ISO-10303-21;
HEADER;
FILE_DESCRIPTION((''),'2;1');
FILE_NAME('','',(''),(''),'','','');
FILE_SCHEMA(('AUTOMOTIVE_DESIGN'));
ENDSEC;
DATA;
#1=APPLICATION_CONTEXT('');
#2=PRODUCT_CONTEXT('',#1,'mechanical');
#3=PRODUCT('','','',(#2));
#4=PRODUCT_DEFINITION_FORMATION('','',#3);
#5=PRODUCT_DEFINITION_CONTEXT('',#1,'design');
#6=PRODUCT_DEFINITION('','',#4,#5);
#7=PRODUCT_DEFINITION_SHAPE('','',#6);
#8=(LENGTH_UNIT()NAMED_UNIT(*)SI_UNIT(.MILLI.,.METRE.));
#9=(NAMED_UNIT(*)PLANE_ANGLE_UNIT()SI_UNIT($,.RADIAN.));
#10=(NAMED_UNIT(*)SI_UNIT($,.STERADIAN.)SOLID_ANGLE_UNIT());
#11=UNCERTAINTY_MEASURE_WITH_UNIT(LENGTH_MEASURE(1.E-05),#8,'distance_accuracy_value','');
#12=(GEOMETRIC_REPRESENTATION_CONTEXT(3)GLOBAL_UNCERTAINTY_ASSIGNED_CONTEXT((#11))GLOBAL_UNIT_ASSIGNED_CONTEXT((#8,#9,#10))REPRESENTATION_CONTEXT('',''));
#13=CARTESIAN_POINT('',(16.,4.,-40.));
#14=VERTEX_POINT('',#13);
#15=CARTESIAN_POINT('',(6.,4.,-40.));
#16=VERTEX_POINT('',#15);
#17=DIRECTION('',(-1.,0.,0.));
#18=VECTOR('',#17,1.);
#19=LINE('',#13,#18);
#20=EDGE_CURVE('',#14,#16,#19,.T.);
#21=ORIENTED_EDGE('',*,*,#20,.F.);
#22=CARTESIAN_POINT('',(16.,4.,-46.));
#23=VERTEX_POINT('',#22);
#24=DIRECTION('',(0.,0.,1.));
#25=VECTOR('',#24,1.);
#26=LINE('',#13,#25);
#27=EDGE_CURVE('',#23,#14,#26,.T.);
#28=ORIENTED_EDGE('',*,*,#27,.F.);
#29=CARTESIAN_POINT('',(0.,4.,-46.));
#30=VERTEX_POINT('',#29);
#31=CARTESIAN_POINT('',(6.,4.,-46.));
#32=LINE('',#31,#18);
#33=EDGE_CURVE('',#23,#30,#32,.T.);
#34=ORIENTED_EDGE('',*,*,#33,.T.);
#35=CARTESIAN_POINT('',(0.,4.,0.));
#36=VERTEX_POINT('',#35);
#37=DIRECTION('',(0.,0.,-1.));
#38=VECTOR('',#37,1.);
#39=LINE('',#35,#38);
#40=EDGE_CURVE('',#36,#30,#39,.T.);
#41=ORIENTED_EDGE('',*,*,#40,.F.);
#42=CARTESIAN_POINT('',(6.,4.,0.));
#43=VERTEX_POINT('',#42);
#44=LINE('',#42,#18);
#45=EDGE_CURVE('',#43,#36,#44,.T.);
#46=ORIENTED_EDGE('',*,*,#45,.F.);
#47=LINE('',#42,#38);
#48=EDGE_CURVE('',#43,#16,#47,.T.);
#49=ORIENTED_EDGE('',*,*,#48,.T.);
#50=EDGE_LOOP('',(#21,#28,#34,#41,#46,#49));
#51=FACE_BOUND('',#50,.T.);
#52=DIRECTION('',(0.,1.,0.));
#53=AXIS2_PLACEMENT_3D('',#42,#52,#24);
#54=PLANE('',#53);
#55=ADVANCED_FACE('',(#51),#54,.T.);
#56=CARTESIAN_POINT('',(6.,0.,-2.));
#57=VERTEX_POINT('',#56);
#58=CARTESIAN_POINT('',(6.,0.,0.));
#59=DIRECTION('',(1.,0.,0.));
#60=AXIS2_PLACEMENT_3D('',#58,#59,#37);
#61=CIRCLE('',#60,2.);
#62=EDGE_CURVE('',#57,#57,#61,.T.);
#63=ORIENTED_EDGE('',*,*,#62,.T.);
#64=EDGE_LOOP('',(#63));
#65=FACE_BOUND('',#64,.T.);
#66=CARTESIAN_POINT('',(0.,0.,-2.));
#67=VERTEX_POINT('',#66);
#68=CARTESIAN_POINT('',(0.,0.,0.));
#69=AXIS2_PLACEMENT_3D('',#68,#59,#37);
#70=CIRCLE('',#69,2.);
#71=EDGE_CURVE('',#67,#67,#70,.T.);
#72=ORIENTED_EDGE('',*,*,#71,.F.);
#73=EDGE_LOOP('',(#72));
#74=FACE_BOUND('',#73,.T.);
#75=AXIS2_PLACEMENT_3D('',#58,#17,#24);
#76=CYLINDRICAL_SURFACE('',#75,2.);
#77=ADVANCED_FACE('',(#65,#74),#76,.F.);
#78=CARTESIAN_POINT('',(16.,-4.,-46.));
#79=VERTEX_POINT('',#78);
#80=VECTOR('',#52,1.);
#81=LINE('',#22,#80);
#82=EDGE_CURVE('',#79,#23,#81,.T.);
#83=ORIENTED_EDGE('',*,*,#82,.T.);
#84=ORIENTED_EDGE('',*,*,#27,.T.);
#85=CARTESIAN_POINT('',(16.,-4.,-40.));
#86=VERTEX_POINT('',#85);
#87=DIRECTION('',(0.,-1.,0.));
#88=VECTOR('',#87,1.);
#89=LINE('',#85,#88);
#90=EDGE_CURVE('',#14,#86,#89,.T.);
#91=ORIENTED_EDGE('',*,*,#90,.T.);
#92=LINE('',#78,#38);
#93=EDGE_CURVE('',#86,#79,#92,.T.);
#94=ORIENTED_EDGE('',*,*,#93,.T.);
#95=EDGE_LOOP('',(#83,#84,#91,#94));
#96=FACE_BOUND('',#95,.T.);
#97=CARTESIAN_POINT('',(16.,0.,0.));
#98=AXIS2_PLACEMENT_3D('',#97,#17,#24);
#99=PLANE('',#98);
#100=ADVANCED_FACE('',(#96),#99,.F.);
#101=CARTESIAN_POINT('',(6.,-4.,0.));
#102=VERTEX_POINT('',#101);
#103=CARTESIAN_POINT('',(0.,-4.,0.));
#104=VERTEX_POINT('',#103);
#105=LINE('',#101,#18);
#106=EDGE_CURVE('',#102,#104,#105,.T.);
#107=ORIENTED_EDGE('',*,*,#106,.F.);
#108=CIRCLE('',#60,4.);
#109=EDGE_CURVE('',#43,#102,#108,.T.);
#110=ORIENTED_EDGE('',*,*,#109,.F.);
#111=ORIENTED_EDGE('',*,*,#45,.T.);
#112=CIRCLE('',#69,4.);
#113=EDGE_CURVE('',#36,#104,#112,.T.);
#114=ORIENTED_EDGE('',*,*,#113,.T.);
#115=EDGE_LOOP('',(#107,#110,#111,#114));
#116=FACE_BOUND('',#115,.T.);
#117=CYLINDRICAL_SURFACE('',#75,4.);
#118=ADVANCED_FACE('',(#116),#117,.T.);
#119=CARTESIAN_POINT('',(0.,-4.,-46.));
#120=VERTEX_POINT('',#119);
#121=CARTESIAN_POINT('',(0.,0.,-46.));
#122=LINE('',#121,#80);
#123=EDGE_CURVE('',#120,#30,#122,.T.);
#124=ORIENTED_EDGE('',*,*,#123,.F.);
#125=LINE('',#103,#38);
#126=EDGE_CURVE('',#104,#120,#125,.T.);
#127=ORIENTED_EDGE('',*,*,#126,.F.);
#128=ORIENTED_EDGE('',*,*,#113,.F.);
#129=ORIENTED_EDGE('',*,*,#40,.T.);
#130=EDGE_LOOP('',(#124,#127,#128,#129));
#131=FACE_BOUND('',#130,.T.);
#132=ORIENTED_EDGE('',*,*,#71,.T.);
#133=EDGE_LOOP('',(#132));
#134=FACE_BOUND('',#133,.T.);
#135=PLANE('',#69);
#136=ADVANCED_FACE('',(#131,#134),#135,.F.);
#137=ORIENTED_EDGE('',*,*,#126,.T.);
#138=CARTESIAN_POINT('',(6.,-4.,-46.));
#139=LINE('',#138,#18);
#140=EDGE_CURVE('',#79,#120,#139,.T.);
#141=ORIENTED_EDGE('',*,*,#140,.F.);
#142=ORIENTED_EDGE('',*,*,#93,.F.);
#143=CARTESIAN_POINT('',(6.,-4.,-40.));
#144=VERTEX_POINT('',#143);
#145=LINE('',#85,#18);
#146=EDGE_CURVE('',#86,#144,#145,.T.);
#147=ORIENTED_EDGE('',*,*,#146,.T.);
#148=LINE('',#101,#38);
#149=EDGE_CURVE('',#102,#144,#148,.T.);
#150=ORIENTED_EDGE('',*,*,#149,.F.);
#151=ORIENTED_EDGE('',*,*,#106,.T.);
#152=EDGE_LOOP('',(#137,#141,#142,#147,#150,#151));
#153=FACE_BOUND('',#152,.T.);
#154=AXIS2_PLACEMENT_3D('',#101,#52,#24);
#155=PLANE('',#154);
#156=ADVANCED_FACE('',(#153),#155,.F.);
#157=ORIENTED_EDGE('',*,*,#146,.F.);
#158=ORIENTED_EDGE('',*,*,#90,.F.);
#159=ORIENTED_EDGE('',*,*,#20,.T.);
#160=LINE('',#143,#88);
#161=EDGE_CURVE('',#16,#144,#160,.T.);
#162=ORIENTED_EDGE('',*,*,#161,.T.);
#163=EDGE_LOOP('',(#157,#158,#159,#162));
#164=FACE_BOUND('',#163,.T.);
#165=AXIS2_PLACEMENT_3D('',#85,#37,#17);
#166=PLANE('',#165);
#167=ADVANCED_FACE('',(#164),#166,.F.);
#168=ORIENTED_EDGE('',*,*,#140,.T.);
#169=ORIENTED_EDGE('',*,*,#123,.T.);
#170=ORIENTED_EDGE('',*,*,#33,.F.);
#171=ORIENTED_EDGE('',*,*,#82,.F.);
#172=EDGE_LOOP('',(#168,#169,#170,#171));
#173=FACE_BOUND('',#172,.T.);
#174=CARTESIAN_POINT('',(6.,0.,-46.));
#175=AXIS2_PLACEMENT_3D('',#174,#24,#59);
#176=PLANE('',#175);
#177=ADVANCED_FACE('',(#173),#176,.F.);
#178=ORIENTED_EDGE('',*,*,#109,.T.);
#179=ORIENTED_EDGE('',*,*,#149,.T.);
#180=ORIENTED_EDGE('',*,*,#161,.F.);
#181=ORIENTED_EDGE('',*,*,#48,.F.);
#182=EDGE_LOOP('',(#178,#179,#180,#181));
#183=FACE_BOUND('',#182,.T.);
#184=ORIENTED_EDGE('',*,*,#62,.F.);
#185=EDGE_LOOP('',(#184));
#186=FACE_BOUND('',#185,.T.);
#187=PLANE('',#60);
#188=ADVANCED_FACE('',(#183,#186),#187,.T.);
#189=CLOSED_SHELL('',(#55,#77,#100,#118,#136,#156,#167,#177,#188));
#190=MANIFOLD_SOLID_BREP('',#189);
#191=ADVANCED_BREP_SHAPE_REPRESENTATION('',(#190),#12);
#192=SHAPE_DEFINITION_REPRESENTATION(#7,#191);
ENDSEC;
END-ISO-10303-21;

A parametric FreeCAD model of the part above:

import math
import FreeCAD as App
import Part
import Sketcher

V = App.Vector
Q = App.Units.Quantity

doc = App.newDocument("Part")
params = doc.addObject("Spreadsheet::Sheet", "Params")
for row, (alias, value) in enumerate([
    ("sketch1_diameter", "4 mm"),
    ("sketch1_radius", "4 mm"),
    ("sketch1_height", "46 mm"),
    ("pad1_length", "6 mm"),
    ("sketch2_width", "8 mm"),
    ("sketch2_height", "6 mm"),
    ("pad2_length", "10 mm"),
], start=1):
    params.set(f"A{row}", alias)
    params.set(f"B{row}", "=" + value)
    params.setAlias(f"B{row}", alias)

body = doc.addObject("PartDesign::Body", "Body")

# Sketch on YZ plane
sketch1 = doc.addObject("Sketcher::SketchObject", "Sketch")
body.addObject(sketch1)
sketch1.AttachmentSupport = (doc.YZ_Plane, [""])
sketch1.MapMode = "FlatFace"
sketch1.addGeometry([
    Part.LineSegment(V(4, -46, 0), V(4, 0, 0)),  # 0
    Part.ArcOfCircle(Part.Circle(V(0, 0, 0), V(0, 0, 1), 4), math.radians(0), math.radians(180)),  # 1
    Part.LineSegment(V(-4, 0, 0), V(-4, -46, 0)),  # 2
    Part.LineSegment(V(-4, -46, 0), V(4, -46, 0)),  # 3
    Part.Circle(V(0, 0, 0), V(0, 0, 1), 2),  # 4
], False)
sketch1.addConstraint([
    Sketcher.Constraint("Tangent", 0, 2, 1, 1),
    Sketcher.Constraint("Tangent", 1, 2, 2, 1),
    Sketcher.Constraint("Coincident", 2, 2, 3, 1),
    Sketcher.Constraint("Coincident", 3, 2, 0, 1),
    Sketcher.Constraint("Vertical", 0),
    Sketcher.Constraint("Vertical", 2),
    Sketcher.Constraint("Horizontal", 3),
    Sketcher.Constraint("Coincident", 1, 3, -1, 1),
    Sketcher.Constraint("Coincident", 4, 3, -1, 1),
    Sketcher.Constraint("Diameter", 4, Q("4 mm")),
    Sketcher.Constraint("Radius", 1, Q("4 mm")),
    Sketcher.Constraint("DistanceY", 0, 1, 0, 2, Q("46 mm")),
])
sketch1.setExpression("Constraints[9]", "Params.sketch1_diameter")
sketch1.setExpression("Constraints[10]", "Params.sketch1_radius")
sketch1.setExpression("Constraints[11]", "Params.sketch1_height")
pad1 = doc.addObject("PartDesign::Pad", "Pad")
body.addObject(pad1)
pad1.Profile = sketch1
pad1.setExpression("Length", "Params.pad1_length")

# Sketch on YZ plane
sketch2 = doc.addObject("Sketcher::SketchObject", "Sketch001")
body.addObject(sketch2)
sketch2.AttachmentSupport = (doc.YZ_Plane, [""])
sketch2.MapMode = "FlatFace"
sketch2.AttachmentOffset = App.Placement(V(0, 0, 6), App.Rotation())
sketch2.addGeometry([
    Part.LineSegment(V(4, -40, 0), V(-4, -40, 0)),
    Part.LineSegment(V(-4, -40, 0), V(-4, -46, 0)),
    Part.LineSegment(V(-4, -46, 0), V(4, -46, 0)),
    Part.LineSegment(V(4, -46, 0), V(4, -40, 0)),
], False)
sketch2.addConstraint([
    Sketcher.Constraint("Coincident", 0, 2, 1, 1),
    Sketcher.Constraint("Coincident", 1, 2, 2, 1),
    Sketcher.Constraint("Coincident", 2, 2, 3, 1),
    Sketcher.Constraint("Coincident", 3, 2, 0, 1),
    Sketcher.Constraint("Horizontal", 0),
    Sketcher.Constraint("Vertical", 1),
    Sketcher.Constraint("Horizontal", 2),
    Sketcher.Constraint("Vertical", 3),
    Sketcher.Constraint("DistanceX", 0, 2, 0, 1, Q("8 mm")),
    Sketcher.Constraint("DistanceY", 1, 2, 1, 1, Q("6 mm")),
    Sketcher.Constraint("DistanceX", 0, 2, -1, 1, Q("4 mm")),
    Sketcher.Constraint("DistanceY", 0, 2, -1, 1, Q("40 mm")),
])
sketch2.setExpression("Constraints[8]", "Params.sketch2_width")
sketch2.setExpression("Constraints[9]", "Params.sketch2_height")
pad2 = doc.addObject("PartDesign::Pad", "Pad001")
body.addObject(pad2)
pad2.Profile = sketch2
pad2.setExpression("Length", "Params.pad2_length")

doc.recompute()
